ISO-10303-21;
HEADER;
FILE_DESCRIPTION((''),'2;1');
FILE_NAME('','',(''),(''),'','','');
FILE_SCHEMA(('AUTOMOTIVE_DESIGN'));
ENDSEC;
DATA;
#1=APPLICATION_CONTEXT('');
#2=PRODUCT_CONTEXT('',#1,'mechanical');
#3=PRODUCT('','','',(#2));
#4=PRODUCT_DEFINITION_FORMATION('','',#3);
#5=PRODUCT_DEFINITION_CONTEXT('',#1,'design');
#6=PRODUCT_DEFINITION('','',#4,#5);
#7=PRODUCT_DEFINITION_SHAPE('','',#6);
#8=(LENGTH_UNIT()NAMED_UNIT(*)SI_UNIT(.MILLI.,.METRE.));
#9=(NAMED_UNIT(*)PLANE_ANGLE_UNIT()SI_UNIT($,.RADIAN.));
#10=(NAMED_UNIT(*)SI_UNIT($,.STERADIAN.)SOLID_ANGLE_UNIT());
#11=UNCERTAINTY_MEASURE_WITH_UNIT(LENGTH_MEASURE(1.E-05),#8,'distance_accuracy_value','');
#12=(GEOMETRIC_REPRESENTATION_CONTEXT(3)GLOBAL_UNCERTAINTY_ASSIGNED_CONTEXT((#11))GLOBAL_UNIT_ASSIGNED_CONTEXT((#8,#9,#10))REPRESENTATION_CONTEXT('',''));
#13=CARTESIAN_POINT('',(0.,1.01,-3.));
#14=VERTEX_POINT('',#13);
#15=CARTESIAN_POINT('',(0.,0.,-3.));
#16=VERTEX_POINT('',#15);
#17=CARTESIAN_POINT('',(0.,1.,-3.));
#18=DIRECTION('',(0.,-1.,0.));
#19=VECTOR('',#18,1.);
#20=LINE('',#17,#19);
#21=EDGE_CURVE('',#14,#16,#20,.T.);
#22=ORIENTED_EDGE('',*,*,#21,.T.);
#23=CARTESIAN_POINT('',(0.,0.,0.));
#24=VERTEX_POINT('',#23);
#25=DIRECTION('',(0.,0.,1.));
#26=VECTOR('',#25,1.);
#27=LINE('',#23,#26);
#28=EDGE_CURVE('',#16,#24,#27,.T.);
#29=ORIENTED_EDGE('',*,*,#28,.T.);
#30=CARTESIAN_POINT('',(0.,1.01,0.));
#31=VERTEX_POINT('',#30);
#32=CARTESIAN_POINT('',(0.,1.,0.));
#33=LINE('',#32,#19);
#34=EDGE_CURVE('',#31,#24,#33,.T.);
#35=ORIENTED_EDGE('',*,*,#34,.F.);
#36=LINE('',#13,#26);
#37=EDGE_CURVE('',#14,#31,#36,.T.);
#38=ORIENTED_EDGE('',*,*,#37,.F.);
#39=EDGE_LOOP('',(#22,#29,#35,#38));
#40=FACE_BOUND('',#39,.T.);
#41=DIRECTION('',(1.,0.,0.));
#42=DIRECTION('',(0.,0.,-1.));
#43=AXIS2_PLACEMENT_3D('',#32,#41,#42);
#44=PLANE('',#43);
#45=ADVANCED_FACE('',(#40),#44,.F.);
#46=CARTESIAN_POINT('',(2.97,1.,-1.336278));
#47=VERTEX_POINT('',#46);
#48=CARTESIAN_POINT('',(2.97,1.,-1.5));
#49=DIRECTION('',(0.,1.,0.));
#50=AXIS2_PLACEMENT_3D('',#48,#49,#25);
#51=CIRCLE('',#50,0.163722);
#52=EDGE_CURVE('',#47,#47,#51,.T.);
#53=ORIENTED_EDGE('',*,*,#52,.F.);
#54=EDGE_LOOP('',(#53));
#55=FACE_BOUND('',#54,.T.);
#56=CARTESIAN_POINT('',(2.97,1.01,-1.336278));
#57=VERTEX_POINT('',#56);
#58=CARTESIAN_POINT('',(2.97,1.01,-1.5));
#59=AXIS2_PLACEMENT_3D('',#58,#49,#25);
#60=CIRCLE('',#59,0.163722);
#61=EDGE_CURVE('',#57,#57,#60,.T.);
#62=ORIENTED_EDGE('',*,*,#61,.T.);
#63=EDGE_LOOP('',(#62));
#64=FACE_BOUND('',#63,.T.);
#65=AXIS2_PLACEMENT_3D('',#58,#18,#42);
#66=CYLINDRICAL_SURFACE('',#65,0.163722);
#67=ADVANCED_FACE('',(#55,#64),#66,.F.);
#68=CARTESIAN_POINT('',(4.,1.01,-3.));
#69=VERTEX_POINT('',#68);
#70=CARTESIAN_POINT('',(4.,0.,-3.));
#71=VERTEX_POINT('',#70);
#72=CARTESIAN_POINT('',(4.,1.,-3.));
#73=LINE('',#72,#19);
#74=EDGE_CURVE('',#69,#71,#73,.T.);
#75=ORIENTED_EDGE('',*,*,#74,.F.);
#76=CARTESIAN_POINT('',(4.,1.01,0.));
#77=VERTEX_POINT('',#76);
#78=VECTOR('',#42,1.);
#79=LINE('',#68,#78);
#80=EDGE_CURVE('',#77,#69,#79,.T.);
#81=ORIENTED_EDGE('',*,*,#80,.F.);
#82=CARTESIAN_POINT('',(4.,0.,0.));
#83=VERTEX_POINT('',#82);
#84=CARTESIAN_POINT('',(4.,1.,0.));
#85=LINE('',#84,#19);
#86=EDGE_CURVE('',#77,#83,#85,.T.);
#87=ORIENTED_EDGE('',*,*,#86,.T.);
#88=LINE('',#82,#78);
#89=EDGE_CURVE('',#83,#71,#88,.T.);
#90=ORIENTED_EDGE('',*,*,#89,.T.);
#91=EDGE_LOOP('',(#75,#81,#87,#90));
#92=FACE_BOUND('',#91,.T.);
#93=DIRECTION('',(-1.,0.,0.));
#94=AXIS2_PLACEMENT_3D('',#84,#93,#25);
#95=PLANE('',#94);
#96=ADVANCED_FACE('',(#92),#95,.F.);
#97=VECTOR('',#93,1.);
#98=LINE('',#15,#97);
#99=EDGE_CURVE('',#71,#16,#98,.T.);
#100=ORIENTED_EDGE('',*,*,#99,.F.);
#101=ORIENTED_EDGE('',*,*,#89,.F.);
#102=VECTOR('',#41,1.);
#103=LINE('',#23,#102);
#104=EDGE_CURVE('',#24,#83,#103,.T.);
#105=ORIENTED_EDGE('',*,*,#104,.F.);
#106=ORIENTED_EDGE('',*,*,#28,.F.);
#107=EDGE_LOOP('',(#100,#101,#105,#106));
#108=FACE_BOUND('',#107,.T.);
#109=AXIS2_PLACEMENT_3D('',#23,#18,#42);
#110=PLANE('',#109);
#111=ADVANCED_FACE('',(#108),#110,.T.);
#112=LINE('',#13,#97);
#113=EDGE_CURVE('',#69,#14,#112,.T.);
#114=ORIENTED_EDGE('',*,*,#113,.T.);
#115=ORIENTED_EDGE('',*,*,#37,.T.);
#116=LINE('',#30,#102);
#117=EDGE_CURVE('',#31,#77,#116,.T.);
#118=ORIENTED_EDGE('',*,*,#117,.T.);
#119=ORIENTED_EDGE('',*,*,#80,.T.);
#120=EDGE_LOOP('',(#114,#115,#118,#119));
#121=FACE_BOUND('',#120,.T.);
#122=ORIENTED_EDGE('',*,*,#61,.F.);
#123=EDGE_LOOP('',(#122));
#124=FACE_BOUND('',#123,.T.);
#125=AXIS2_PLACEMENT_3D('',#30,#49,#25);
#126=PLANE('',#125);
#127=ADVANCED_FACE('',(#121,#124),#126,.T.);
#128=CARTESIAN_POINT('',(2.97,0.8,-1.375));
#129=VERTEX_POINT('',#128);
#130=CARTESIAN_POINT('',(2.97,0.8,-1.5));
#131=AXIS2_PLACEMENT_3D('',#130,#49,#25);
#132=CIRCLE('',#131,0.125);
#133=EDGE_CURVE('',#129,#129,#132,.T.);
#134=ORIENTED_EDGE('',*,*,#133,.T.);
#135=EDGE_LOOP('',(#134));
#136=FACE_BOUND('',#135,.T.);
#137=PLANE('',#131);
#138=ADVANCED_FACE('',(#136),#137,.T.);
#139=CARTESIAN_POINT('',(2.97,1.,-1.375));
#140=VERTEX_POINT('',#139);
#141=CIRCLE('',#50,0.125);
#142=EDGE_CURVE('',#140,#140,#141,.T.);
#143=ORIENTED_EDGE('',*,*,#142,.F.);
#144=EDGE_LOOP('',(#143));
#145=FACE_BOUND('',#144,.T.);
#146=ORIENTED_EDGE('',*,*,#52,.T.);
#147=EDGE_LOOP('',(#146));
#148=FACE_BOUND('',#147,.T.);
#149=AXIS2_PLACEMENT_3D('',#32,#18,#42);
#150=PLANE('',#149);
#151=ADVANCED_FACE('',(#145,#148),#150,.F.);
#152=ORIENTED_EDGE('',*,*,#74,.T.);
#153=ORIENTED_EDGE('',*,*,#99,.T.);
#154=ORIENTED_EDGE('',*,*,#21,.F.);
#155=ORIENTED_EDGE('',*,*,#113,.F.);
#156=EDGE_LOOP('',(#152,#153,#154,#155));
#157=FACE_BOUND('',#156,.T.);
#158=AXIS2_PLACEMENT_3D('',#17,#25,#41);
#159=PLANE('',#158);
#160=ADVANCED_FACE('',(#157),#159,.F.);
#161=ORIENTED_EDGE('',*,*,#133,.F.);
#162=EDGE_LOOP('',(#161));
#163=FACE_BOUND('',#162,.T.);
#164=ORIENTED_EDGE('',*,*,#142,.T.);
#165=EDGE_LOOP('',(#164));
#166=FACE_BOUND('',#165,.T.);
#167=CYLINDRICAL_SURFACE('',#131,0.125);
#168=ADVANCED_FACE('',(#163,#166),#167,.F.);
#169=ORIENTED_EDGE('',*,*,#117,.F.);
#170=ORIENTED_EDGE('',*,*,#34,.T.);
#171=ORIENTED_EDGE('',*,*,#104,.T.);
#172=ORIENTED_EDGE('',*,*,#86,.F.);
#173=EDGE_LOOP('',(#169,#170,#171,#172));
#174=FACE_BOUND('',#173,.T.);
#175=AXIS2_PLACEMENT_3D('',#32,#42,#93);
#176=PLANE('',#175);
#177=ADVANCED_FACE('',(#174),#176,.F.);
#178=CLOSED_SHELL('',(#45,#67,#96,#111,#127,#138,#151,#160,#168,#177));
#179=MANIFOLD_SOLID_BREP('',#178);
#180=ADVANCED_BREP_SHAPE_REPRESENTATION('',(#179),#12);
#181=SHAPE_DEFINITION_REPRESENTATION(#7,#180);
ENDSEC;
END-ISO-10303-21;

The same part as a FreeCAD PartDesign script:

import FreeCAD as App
import Part
import Sketcher

V = App.Vector

doc = App.newDocument("Part")
body = doc.addObject("PartDesign::Body", "Body")

# Sketch on XZ plane
sketch1 = body.newObject("Sketcher::SketchObject", "Sketch")
sketch1.AttachmentSupport = (doc.getObject("XZ_Plane"), [""])
sketch1.MapMode = "FlatFace"
sketch1.addGeometry([
    Part.LineSegment(V(0, -3, 0), V(0, 0, 0)),
    Part.LineSegment(V(0, 0, 0), V(4, 0, 0)),
    Part.LineSegment(V(4, 0, 0), V(4, -3, 0)),
    Part.LineSegment(V(4, -3, 0), V(0, -3, 0)),
], False)
sketch1.addConstraint([
    Sketcher.Constraint("Coincident", 0, 2, 1, 1),
    Sketcher.Constraint("Coincident", 1, 2, 2, 1),
    Sketcher.Constraint("Coincident", 2, 2, 3, 1),
    Sketcher.Constraint("Coincident", 3, 2, 0, 1),
    Sketcher.Constraint("Vertical", 0),
    Sketcher.Constraint("Horizontal", 1),
    Sketcher.Constraint("Vertical", 2),
    Sketcher.Constraint("Horizontal", 3),
    Sketcher.Constraint("Coincident", 0, 2, -1, 1),
    Sketcher.Constraint("DistanceX", 1, 1, 1, 2, 4.0),
    Sketcher.Constraint("DistanceY", 0, 1, 0, 2, 3.0),
])
pad1 = body.newObject("PartDesign::Pad", "Pad")
pad1.Profile = sketch1
pad1.Length = 1
pad1.Reversed = True

# Sketch on XZ plane
sketch2 = body.newObject("Sketcher::SketchObject", "Sketch001")
sketch2.AttachmentSupport = (doc.getObject("XZ_Plane"), [""])
sketch2.MapMode = "FlatFace"
sketch2.AttachmentOffset = App.Placement(V(0, 0, -1), App.Rotation())
sketch2.addGeometry(Part.Circle(V(2.97, -1.5, 0), V(0, 0, 1), 0.12), False)
sketch2.addConstraint([
    Sketcher.Constraint("Diameter", 0, 0.25),
    Sketcher.Constraint("DistanceY", 0, 3, -1, 1, 1.5),
    Sketcher.Constraint("DistanceX", -1, 1, 0, 3, 2.97),
])
pocket1 = body.newObject("PartDesign::Pocket", "Pocket")
pocket1.Profile = sketch2
pocket1.Length = 0.2
pocket1.Reversed = True

# Sketch on XZ plane
sketch3 = body.newObject("Sketcher::SketchObject", "Sketch002")
sketch3.AttachmentSupport = (doc.getObject("XZ_Plane"), [""])
sketch3.MapMode = "FlatFace"
sketch3.AttachmentOffset = App.Placement(V(0, 0, -1), App.Rotation())
sketch3.addGeometry([
    Part.LineSegment(V(0, -3, 0), V(0, 0, 0)),  # 0
    Part.LineSegment(V(0, 0, 0), V(4, 0, 0)),  # 1
    Part.LineSegment(V(4, 0, 0), V(4, -3, 0)),  # 2
    Part.LineSegment(V(4, -3, 0), V(0, -3, 0)),  # 3
    Part.Circle(V(2.97, -1.5, 0), V(0, 0, 1), 0.16),  # 4
], False)
sketch3.addConstraint([
    Sketcher.Constraint("Coincident", 0, 2, 1, 1),
    Sketcher.Constraint("Coincident", 1, 2, 2, 1),
    Sketcher.Constraint("Coincident", 2, 2, 3, 1),
    Sketcher.Constraint("Coincident", 3, 2, 0, 1),
    Sketcher.Constraint("Vertical", 0),
    Sketcher.Constraint("Horizontal", 1),
    Sketcher.Constraint("Vertical", 2),
    Sketcher.Constraint("Horizontal", 3),
    Sketcher.Constraint("Coincident", 0, 2, -1, 1),
    Sketcher.Constraint("DistanceX", 1, 1, 1, 2, 4.0),
    Sketcher.Constraint("DistanceY", 0, 1, 0, 2, 3.0),
    Sketcher.Constraint("DistanceY", 4, 3, -1, 1, 1.5),
    Sketcher.Constraint("DistanceX", -1, 1, 4, 3, 2.97),
    Sketcher.Constraint("Diameter", 4, 0.327445),
])
pad2 = body.newObject("PartDesign::Pad", "Pad001")
pad2.Profile = sketch3
pad2.Length = 0.01
pad2.Reversed = True

doc.recompute()
